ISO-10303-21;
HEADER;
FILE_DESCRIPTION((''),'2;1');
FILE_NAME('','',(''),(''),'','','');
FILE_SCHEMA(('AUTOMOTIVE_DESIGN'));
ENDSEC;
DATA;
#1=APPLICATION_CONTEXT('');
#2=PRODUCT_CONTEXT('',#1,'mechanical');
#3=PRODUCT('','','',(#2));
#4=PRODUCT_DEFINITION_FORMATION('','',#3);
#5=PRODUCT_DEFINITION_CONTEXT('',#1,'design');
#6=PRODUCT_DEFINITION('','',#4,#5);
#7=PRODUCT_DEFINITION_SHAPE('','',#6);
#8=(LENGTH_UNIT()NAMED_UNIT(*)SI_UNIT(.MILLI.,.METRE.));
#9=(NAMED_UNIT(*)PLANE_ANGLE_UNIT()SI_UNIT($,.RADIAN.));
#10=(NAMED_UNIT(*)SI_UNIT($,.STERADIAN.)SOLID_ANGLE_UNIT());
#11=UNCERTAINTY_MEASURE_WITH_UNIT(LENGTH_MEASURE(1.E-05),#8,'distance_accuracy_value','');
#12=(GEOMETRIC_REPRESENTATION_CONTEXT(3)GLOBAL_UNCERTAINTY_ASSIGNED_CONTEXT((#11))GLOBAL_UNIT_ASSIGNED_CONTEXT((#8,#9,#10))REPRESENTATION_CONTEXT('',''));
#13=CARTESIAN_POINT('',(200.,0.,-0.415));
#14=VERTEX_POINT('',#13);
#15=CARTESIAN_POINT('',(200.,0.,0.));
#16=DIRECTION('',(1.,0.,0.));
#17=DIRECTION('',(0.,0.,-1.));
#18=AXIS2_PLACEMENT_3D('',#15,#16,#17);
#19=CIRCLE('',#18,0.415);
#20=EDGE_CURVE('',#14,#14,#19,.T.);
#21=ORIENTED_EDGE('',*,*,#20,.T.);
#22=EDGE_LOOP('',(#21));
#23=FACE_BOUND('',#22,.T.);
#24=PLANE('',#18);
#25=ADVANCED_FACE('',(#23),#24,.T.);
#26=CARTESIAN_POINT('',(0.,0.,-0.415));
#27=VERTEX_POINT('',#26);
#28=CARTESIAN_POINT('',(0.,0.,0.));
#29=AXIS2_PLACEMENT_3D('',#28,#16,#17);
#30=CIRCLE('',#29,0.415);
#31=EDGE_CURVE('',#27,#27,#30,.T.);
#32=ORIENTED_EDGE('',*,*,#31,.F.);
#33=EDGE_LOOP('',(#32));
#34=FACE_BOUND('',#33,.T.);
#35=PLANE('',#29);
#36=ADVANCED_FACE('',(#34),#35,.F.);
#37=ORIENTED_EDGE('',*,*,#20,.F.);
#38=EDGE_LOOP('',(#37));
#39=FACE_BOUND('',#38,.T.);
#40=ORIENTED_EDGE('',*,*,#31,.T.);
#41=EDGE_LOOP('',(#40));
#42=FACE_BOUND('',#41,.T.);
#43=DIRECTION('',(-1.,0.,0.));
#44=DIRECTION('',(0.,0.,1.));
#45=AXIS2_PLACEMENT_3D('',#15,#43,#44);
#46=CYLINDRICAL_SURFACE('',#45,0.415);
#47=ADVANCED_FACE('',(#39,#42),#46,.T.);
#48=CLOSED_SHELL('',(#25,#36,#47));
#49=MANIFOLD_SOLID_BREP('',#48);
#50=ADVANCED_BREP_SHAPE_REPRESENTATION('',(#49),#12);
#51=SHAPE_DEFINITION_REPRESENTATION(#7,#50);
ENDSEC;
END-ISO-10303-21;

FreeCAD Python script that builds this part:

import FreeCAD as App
import Part
import Sketcher
from FreeCAD import Vector
Q = App.Units.Quantity

doc = App.newDocument("Part")
params = doc.addObject("Spreadsheet::Sheet", "Params")
for row, (alias, value) in enumerate([
    ("sketch1_diameter", "0.83 mm"),
    ("pad1_length", "200 mm"),
], start=1):
    params.set(f"A{row}", alias)
    params.set(f"B{row}", "=" + value)
    params.setAlias(f"B{row}", alias)

body = doc.addObject("PartDesign::Body", "Body")

sketch1 = body.newObject("Sketcher::SketchObject", "Sketch")
sketch1.AttachmentSupport = (doc.getObject("YZ_Plane"), [""])
sketch1.MapMode = "FlatFace"
sketch1.addGeometry(Part.Circle(Vector(0, 0, 0), Vector(0, 0, 1), 0.415), False)
sketch1.addConstraint([
    Sketcher.Constraint("Coincident", 0, 3, -1, 1),
    Sketcher.Constraint("Diameter", 0, Q("0.83 mm")),
])
sketch1.setExpression("Constraints[1]", "Params.sketch1_diameter")
pad1 = body.newObject("PartDesign::Pad", "Pad")
pad1.Profile = sketch1
pad1.setExpression("Length", "Params.pad1_length")

doc.recompute()
